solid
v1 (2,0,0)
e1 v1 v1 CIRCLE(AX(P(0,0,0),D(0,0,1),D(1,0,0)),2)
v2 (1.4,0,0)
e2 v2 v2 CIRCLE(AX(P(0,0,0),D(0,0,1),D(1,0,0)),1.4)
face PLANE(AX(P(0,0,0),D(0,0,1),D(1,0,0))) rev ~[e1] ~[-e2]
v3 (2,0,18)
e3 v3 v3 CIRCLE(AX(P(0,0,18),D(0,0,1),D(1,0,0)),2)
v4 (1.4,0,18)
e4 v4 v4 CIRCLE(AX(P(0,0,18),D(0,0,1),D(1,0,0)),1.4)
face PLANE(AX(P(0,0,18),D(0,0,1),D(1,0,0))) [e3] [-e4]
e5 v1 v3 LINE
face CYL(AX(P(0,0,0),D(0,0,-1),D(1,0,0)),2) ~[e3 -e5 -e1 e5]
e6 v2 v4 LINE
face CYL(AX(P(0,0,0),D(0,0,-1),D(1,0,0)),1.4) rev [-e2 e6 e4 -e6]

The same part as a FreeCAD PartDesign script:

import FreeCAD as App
import Part
import Sketcher
from FreeCAD import Vector

doc = App.newDocument("Part")
body = doc.addObject("PartDesign::Body", "Body")

# Sketch on XY plane
sketch1 = body.newObject("Sketcher::SketchObject", "Sketch")
sketch1.AttachmentSupport = (doc.getObject("XY_Plane"), [""])
sketch1.MapMode = "FlatFace"
sketch1.addGeometry([
    Part.Circle(Vector(0, 0, 0), Vector(0, 0, 1), 2),
    Part.Circle(Vector(0, 0, 0), Vector(0, 0, 1), 1.4),
], False)
sketch1.addConstraint([
    Sketcher.Constraint("Coincident", 0, 3, -1, 1),
    Sketcher.Constraint("Coincident", 1, 3, -1, 1),
    Sketcher.Constraint("Diameter", 0, 4.0),
    Sketcher.Constraint("Diameter", 1, 2.8),
])
pad1 = body.newObject("PartDesign::Pad", "Pad")
pad1.Profile = sketch1
pad1.Length = 18

doc.recompute()
